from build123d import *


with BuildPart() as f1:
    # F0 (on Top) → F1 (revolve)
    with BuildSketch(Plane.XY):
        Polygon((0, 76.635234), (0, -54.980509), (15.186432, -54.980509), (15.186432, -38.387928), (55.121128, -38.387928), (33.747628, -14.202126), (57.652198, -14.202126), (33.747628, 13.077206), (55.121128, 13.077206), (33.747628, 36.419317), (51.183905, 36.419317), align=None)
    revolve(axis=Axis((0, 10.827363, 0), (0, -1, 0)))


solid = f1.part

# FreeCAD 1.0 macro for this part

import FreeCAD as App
import Part
import Sketcher


def add_polygon(sketch, points):
    """Adds a closed chain of lines whose ends are joined by coincident constraints."""
    first, n = sketch.GeometryCount, len(points)
    for a, b in zip(points, points[1:] + points[:1]):
        sketch.addGeometry(Part.LineSegment(App.Vector(*a, 0), App.Vector(*b, 0)), False)
    for i in range(n):
        sketch.addConstraint(Sketcher.Constraint("Coincident", first + i, 2, first + (i + 1) % n, 1))

doc = App.newDocument("Part")
body = doc.addObject("PartDesign::Body", "Body")

# Sketch on XY plane
sketch1 = body.newObject("Sketcher::SketchObject", "Sketch")
sketch1.AttachmentSupport = (doc.getObject("XY_Plane"), [""])
sketch1.MapMode = "FlatFace"
add_polygon(sketch1, [(0, 76.635234), (0, -54.980509), (15.186432, -54.980509), (15.186432, -38.387928), (55.121128, -38.387928), (33.747628, -14.202126), (57.652198, -14.202126), (33.747628, 13.077206), (55.121128, 13.077206), (33.747628, 36.419317), (51.183905, 36.419317)])  # lines 0-10
sketch1.addConstraint(Sketcher.Constraint("Vertical", 0))
sketch1.addConstraint(Sketcher.Constraint("Horizontal", 1))
sketch1.addConstraint(Sketcher.Constraint("Vertical", 2))
sketch1.addConstraint(Sketcher.Constraint("Horizontal", 3))
sketch1.addConstraint(Sketcher.Constraint("Horizontal", 5))
sketch1.addConstraint(Sketcher.Constraint("Horizontal", 7))
sketch1.addConstraint(Sketcher.Constraint("Horizontal", 9))
sketch1.addConstraint(Sketcher.Constraint("PointOnObject", 0, 2, -2))
sketch1.addConstraint(Sketcher.Constraint("Vertical", 4, 2, 6, 2))
sketch1.addConstraint(Sketcher.Constraint("Vertical", 3, 2, 7, 2))
sketch1.addConstraint(Sketcher.Constraint("Vertical", 6, 2, 8, 2))
sketch1.addConstraint(Sketcher.Constraint("DistanceX", 7, 1, 7, 2, 21.3735))
sketch1.addConstraint(Sketcher.Constraint("DistanceX", 5, 1, 5, 2, 23.90457))
sketch1.addConstraint(Sketcher.Constraint("DistanceY", 2, 1, 2, 2, 16.592581))
sketch1.addConstraint(Sketcher.Constraint("Distance", 4, 32.276609))
sketch1.addConstraint(Sketcher.Constraint("Distance", 6, 36.271069))
sketch1.addConstraint(Sketcher.Constraint("Distance", 8, 31.649339))
sketch1.addConstraint(Sketcher.Constraint("DistanceX", 1, 1, 1, 2, 15.186432))
sketch1.addConstraint(Sketcher.Constraint("DistanceX", 3, 1, 3, 2, 39.934696))
sketch1.addConstraint(Sketcher.Constraint("DistanceX", 9, 1, 9, 2, 17.436277))
sketch1.addConstraint(Sketcher.Constraint("DistanceY", 0, 2, 0, 1, 131.615743))
sketch1.addConstraint(Sketcher.Constraint("DistanceY", 0, 2, -1, 1, 54.980509))
revolution = body.newObject("PartDesign::Revolution", "Revolution")
revolution.Profile = sketch1
revolution.ReferenceAxis = (sketch1, ["V_Axis"])
revolution.Angle = 360

doc.recompute()
